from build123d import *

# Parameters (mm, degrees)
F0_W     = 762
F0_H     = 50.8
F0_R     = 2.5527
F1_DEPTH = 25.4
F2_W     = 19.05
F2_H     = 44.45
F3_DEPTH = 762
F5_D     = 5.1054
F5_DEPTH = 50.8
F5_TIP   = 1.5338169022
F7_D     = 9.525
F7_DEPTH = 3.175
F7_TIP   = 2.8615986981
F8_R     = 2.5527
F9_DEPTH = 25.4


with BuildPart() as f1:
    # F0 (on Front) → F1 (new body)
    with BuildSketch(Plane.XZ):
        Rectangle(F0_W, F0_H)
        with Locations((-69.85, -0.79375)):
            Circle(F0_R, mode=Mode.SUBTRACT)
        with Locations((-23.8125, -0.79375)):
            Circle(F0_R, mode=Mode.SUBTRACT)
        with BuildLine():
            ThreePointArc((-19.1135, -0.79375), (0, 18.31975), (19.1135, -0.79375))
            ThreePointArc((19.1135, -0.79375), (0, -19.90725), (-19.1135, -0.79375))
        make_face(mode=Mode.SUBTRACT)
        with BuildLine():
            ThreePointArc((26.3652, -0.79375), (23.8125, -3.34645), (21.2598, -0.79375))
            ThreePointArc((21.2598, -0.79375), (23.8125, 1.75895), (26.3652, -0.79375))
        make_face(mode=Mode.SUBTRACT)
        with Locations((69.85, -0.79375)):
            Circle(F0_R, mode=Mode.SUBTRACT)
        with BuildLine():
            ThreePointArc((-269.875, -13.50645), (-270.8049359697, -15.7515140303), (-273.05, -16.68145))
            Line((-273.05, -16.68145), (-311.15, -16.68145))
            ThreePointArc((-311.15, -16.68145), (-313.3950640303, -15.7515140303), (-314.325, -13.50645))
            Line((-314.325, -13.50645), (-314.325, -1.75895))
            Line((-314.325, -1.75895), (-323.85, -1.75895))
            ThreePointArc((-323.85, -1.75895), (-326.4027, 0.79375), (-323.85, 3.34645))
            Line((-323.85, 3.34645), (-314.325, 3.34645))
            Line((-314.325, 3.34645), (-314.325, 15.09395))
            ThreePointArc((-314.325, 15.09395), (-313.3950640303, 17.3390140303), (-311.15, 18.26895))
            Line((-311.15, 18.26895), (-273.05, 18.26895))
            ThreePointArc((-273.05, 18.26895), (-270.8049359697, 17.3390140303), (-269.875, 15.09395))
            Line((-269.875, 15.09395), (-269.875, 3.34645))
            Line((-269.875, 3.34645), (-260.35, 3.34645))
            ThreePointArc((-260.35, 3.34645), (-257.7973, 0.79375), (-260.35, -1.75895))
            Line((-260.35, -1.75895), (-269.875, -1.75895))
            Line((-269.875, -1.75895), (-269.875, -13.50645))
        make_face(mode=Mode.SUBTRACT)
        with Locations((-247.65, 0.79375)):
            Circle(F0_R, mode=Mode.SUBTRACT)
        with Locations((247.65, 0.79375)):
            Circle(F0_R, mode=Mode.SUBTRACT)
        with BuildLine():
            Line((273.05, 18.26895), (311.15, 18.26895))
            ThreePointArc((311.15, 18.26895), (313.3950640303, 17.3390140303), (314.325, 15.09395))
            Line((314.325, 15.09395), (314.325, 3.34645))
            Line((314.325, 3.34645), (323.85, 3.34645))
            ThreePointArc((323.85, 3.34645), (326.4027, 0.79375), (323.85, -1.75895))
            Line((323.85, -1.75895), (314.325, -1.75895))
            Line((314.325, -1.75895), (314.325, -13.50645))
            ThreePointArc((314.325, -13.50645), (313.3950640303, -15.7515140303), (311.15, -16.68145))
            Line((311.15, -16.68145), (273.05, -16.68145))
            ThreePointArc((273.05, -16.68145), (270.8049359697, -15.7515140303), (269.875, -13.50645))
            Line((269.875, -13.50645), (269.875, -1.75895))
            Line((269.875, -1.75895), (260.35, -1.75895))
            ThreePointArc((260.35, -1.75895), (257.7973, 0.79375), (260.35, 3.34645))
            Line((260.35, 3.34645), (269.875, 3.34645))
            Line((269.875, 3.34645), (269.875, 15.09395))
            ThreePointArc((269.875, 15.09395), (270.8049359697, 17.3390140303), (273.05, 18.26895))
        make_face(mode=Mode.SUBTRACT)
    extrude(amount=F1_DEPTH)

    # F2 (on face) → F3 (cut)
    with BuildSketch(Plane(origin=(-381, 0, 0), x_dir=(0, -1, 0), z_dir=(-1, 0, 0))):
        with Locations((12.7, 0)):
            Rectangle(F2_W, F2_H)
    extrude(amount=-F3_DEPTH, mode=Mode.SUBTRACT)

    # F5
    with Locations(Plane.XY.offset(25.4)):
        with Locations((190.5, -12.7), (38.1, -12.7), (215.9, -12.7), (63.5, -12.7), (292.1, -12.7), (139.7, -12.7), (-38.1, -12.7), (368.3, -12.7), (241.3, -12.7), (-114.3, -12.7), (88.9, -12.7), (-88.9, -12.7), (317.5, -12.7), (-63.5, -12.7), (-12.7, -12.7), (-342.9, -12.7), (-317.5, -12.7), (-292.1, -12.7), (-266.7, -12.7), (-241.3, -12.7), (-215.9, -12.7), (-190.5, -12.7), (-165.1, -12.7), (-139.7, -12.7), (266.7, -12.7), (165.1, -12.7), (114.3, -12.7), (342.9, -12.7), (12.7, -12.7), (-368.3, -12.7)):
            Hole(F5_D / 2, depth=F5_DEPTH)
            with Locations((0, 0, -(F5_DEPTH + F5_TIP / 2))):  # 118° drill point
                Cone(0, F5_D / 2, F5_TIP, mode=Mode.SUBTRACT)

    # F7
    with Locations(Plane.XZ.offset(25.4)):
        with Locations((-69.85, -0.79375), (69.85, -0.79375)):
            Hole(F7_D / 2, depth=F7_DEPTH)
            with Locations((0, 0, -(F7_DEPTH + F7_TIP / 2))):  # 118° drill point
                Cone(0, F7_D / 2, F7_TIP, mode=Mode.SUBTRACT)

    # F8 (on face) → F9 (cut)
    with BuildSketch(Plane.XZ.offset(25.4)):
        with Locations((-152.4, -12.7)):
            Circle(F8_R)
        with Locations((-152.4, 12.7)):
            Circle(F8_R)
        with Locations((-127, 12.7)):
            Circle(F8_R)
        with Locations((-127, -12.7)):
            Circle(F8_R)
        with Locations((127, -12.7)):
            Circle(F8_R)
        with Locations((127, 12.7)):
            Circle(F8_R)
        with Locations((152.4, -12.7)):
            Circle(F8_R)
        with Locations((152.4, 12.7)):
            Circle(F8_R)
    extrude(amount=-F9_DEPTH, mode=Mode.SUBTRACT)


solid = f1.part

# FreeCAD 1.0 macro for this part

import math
import FreeCAD as App
import Part
import Sketcher
from FreeCAD import Vector
Q = App.Units.Quantity

doc = App.newDocument("Part")
body = doc.addObject("PartDesign::Body", "Body")

# Sketch on XZ plane
sketch1 = doc.addObject("Sketcher::SketchObject", "Sketch")
body.addObject(sketch1)
sketch1.AttachmentSupport = (doc.XZ_Plane, [""])
sketch1.MapMode = "FlatFace"
sketch1.addGeometry(Part.LineSegment(Vector(-381, 25.4, 0), Vector(-381, -25.4, 0)), False)
sketch1.addGeometry(Part.LineSegment(Vector(-381, -25.4, 0), Vector(381, -25.4, 0)), False)
sketch1.addGeometry(Part.LineSegment(Vector(381, -25.4, 0), Vector(381, 25.4, 0)), False)
sketch1.addGeometry(Part.LineSegment(Vector(381, 25.4, 0), Vector(-381, 25.4, 0)), False)
sketch1.addGeometry(Part.LineSegment(Vector(-269.9, -1.8, 0), Vector(-269.9, -13.5, 0)), False)
sketch1.addGeometry(Part.ArcOfCircle(Part.Circle(Vector(-273.1, -13.5, 0), Vector(0, 0, 1), 3.2), math.radians(-90), math.radians(0)), False)
sketch1.addGeometry(Part.LineSegment(Vector(-273.1, -16.7, 0), Vector(-311.1, -16.7, 0)), False)
sketch1.addGeometry(Part.ArcOfCircle(Part.Circle(Vector(-311.1, -13.5, 0), Vector(0, 0, 1), 3.2), math.radians(180), math.radians(270)), False)
sketch1.addGeometry(Part.LineSegment(Vector(-314.3, -13.5, 0), Vector(-314.3, -1.8, 0)), False)
sketch1.addGeometry(Part.LineSegment(Vector(-314.3, -1.8, 0), Vector(-323.9, -1.8, 0)), False)
sketch1.addGeometry(Part.ArcOfCircle(Part.Circle(Vector(-323.9, 0.8, 0), Vector(0, 0, 1), 2.6), math.radians(90), math.radians(270)), False)
sketch1.addGeometry(Part.LineSegment(Vector(-323.9, 3.3, 0), Vector(-314.3, 3.3, 0)), False)
sketch1.addGeometry(Part.LineSegment(Vector(-314.3, 3.3, 0), Vector(-314.3, 15.1, 0)), False)
sketch1.addGeometry(Part.ArcOfCircle(Part.Circle(Vector(-311.1, 15.1, 0), Vector(0, 0, 1), 3.2), math.radians(90), math.radians(180)), False)
sketch1.addGeometry(Part.LineSegment(Vector(-311.1, 18.3, 0), Vector(-273.1, 18.3, 0)), False)
sketch1.addGeometry(Part.ArcOfCircle(Part.Circle(Vector(-273.1, 15.1, 0), Vector(0, 0, 1), 3.2), math.radians(0), math.radians(90)), False)
sketch1.addGeometry(Part.LineSegment(Vector(-269.9, 15.1, 0), Vector(-269.9, 3.3, 0)), False)
sketch1.addGeometry(Part.LineSegment(Vector(-269.9, 3.3, 0), Vector(-260.4, 3.3, 0)), False)
sketch1.addGeometry(Part.ArcOfCircle(Part.Circle(Vector(-260.4, 0.8, 0), Vector(0, 0, 1), 2.6), math.radians(-90), math.radians(90)), False)
sketch1.addGeometry(Part.LineSegment(Vector(-260.4, -1.8, 0), Vector(-269.9, -1.8, 0)), False)
sketch1.addGeometry(Part.Circle(Vector(-247.7, 0.8, 0), Vector(0, 0, 1), 2.6), False)
sketch1.addGeometry(Part.Circle(Vector(-69.8, -0.8, 0), Vector(0, 0, 1), 2.6), False)
sketch1.addGeometry(Part.Circle(Vector(-23.8, -0.8, 0), Vector(0, 0, 1), 2.6), False)
sketch1.addGeometry(Part.Circle(Vector(0, -0.8, 0), Vector(0, 0, 1), 19.1), False)
sketch1.addGeometry(Part.Circle(Vector(23.8, -0.8, 0), Vector(0, 0, 1), 2.6), False)
sketch1.addGeometry(Part.Circle(Vector(69.8, -0.8, 0), Vector(0, 0, 1), 2.6), False)
sketch1.addGeometry(Part.Circle(Vector(247.7, 0.8, 0), Vector(0, 0, 1), 2.6), False)
sketch1.addGeometry(Part.ArcOfCircle(Part.Circle(Vector(273.1, 15.1, 0), Vector(0, 0, 1), 3.2), math.radians(90), math.radians(180)), False)
sketch1.addGeometry(Part.LineSegment(Vector(273.1, 18.3, 0), Vector(311.1, 18.3, 0)), False)
sketch1.addGeometry(Part.ArcOfCircle(Part.Circle(Vector(311.1, 15.1, 0), Vector(0, 0, 1), 3.2), math.radians(0), math.radians(90)), False)
sketch1.addGeometry(Part.LineSegment(Vector(314.3, 15.1, 0), Vector(314.3, 3.3, 0)), False)
sketch1.addGeometry(Part.LineSegment(Vector(314.3, 3.3, 0), Vector(323.9, 3.3, 0)), False)
sketch1.addGeometry(Part.ArcOfCircle(Part.Circle(Vector(323.9, 0.8, 0), Vector(0, 0, 1), 2.6), math.radians(-90), math.radians(90)), False)
sketch1.addGeometry(Part.LineSegment(Vector(323.9, -1.8, 0), Vector(314.3, -1.8, 0)), False)
sketch1.addGeometry(Part.LineSegment(Vector(314.3, -1.8, 0), Vector(314.3, -13.5, 0)), False)
sketch1.addGeometry(Part.ArcOfCircle(Part.Circle(Vector(311.1, -13.5, 0), Vector(0, 0, 1), 3.2), math.radians(-90), math.radians(0)), False)
sketch1.addGeometry(Part.LineSegment(Vector(311.1, -16.7, 0), Vector(273.1, -16.7, 0)), False)
sketch1.addGeometry(Part.ArcOfCircle(Part.Circle(Vector(273.1, -13.5, 0), Vector(0, 0, 1), 3.2), math.radians(180), math.radians(270)), False)
sketch1.addGeometry(Part.LineSegment(Vector(269.9, -13.5, 0), Vector(269.9, -1.8, 0)), False)
sketch1.addGeometry(Part.LineSegment(Vector(269.9, -1.8, 0), Vector(260.4, -1.8, 0)), False)
sketch1.addGeometry(Part.ArcOfCircle(Part.Circle(Vector(260.4, 0.8, 0), Vector(0, 0, 1), 2.6), math.radians(90), math.radians(270)), False)
sketch1.addGeometry(Part.LineSegment(Vector(260.4, 3.3, 0), Vector(269.9, 3.3, 0)), False)
sketch1.addGeometry(Part.LineSegment(Vector(269.9, 3.3, 0), Vector(269.9, 15.1, 0)), False)
sketch1.addConstraint(Sketcher.Constraint("Coincident", 0, 2, 1, 1))
sketch1.addConstraint(Sketcher.Constraint("Coincident", 1, 2, 2, 1))
sketch1.addConstraint(Sketcher.Constraint("Coincident", 2, 2, 3, 1))
sketch1.addConstraint(Sketcher.Constraint("Coincident", 3, 2, 0, 1))
sketch1.addConstraint(Sketcher.Constraint("Tangent", 4, 2, 5, 2))
sketch1.addConstraint(Sketcher.Constraint("Tangent", 5, 1, 6, 1))
sketch1.addConstraint(Sketcher.Constraint("Tangent", 6, 2, 7, 2))
sketch1.addConstraint(Sketcher.Constraint("Tangent", 7, 1, 8, 1))
sketch1.addConstraint(Sketcher.Constraint("Coincident", 8, 2, 9, 1))
sketch1.addConstraint(Sketcher.Constraint("Tangent", 9, 2, 10, 2))
sketch1.addConstraint(Sketcher.Constraint("Tangent", 10, 1, 11, 1))
sketch1.addConstraint(Sketcher.Constraint("Coincident", 11, 2, 12, 1))
sketch1.addConstraint(Sketcher.Constraint("Tangent", 12, 2, 13, 2))
sketch1.addConstraint(Sketcher.Constraint("Tangent", 13, 1, 14, 1))
sketch1.addConstraint(Sketcher.Constraint("Tangent", 14, 2, 15, 2))
sketch1.addConstraint(Sketcher.Constraint("Tangent", 15, 1, 16, 1))
sketch1.addConstraint(Sketcher.Constraint("Coincident", 16, 2, 17, 1))
sketch1.addConstraint(Sketcher.Constraint("Tangent", 17, 2, 18, 2))
sketch1.addConstraint(Sketcher.Constraint("Tangent", 18, 1, 19, 1))
sketch1.addConstraint(Sketcher.Constraint("Coincident", 19, 2, 4, 1))
sketch1.addConstraint(Sketcher.Constraint("Tangent", 27, 1, 28, 1))
sketch1.addConstraint(Sketcher.Constraint("Tangent", 28, 2, 29, 2))
sketch1.addConstraint(Sketcher.Constraint("Tangent", 29, 1, 30, 1))
sketch1.addConstraint(Sketcher.Constraint("Coincident", 30, 2, 31, 1))
sketch1.addConstraint(Sketcher.Constraint("Tangent", 31, 2, 32, 2))
sketch1.addConstraint(Sketcher.Constraint("Tangent", 32, 1, 33, 1))
sketch1.addConstraint(Sketcher.Constraint("Coincident", 33, 2, 34, 1))
sketch1.addConstraint(Sketcher.Constraint("Tangent", 34, 2, 35, 2))
sketch1.addConstraint(Sketcher.Constraint("Tangent", 35, 1, 36, 1))
sketch1.addConstraint(Sketcher.Constraint("Tangent", 36, 2, 37, 2))
sketch1.addConstraint(Sketcher.Constraint("Tangent", 37, 1, 38, 1))
sketch1.addConstraint(Sketcher.Constraint("Coincident", 38, 2, 39, 1))
sketch1.addConstraint(Sketcher.Constraint("Tangent", 39, 2, 40, 2))
sketch1.addConstraint(Sketcher.Constraint("Tangent", 40, 1, 41, 1))
sketch1.addConstraint(Sketcher.Constraint("Coincident", 41, 2, 42, 1))
sketch1.addConstraint(Sketcher.Constraint("Tangent", 42, 2, 27, 2))
sketch1.addConstraint(Sketcher.Constraint("Vertical", 0))
sketch1.addConstraint(Sketcher.Constraint("Horizontal", 1))
sketch1.addConstraint(Sketcher.Constraint("Vertical", 2))
sketch1.addConstraint(Sketcher.Constraint("Horizontal", 3))
sketch1.addConstraint(Sketcher.Constraint("Vertical", 4))
sketch1.addConstraint(Sketcher.Constraint("Horizontal", 6))
sketch1.addConstraint(Sketcher.Constraint("Vertical", 8))
sketch1.addConstraint(Sketcher.Constraint("Horizontal", 9))
sketch1.addConstraint(Sketcher.Constraint("Horizontal", 11))
sketch1.addConstraint(Sketcher.Constraint("Vertical", 12))
sketch1.addConstraint(Sketcher.Constraint("Horizontal", 14))
sketch1.addConstraint(Sketcher.Constraint("Vertical", 16))
sketch1.addConstraint(Sketcher.Constraint("Horizontal", 17))
sketch1.addConstraint(Sketcher.Constraint("Horizontal", 19))
sketch1.addConstraint(Sketcher.Constraint("Horizontal", 28))
sketch1.addConstraint(Sketcher.Constraint("Vertical", 30))
sketch1.addConstraint(Sketcher.Constraint("Horizontal", 31))
sketch1.addConstraint(Sketcher.Constraint("Horizontal", 33))
sketch1.addConstraint(Sketcher.Constraint("Vertical", 34))
sketch1.addConstraint(Sketcher.Constraint("Horizontal", 36))
sketch1.addConstraint(Sketcher.Constraint("Vertical", 38))
sketch1.addConstraint(Sketcher.Constraint("Horizontal", 39))
sketch1.addConstraint(Sketcher.Constraint("Horizontal", 41))
sketch1.addConstraint(Sketcher.Constraint("Vertical", 42))
sketch1.addConstraint(Sketcher.Constraint("Equal", 5, 7))
sketch1.addConstraint(Sketcher.Constraint("Equal", 7, 13))
sketch1.addConstraint(Sketcher.Constraint("Equal", 13, 15))
sketch1.addConstraint(Sketcher.Constraint("Equal", 10, 18))
sketch1.addConstraint(Sketcher.Constraint("Equal", 18, 20))
sketch1.addConstraint(Sketcher.Constraint("Equal", 20, 21))
sketch1.addConstraint(Sketcher.Constraint("Equal", 21, 22))
sketch1.addConstraint(Sketcher.Constraint("Equal", 22, 24))
sketch1.addConstraint(Sketcher.Constraint("Equal", 24, 25))
sketch1.addConstraint(Sketcher.Constraint("Equal", 25, 26))
sketch1.addConstraint(Sketcher.Constraint("Equal", 15, 27))
sketch1.addConstraint(Sketcher.Constraint("Equal", 27, 29))
sketch1.addConstraint(Sketcher.Constraint("Equal", 26, 32))
sketch1.addConstraint(Sketcher.Constraint("Equal", 29, 35))
sketch1.addConstraint(Sketcher.Constraint("Equal", 35, 37))
sketch1.addConstraint(Sketcher.Constraint("Equal", 32, 40))
sketch1.addConstraint(Sketcher.Constraint("Symmetric", 0, 2, 2, 2, -1, 1))
sketch1.addConstraint(Sketcher.Constraint("Symmetric", 22, 3, 24, 3, -2))
sketch1.addConstraint(Sketcher.Constraint("Symmetric", 21, 3, 25, 3, -2))
sketch1.addConstraint(Sketcher.Constraint("Symmetric", 20, 3, 26, 3, -2))
sketch1.addConstraint(Sketcher.Constraint("Symmetric", 15, 3, 27, 3, -2))
sketch1.addConstraint(Sketcher.Constraint("Symmetric", 10, 3, 32, 3, -2))
sketch1.addConstraint(Sketcher.Constraint("Symmetric", 7, 3, 35, 3, -2))
sketch1.addConstraint(Sketcher.Constraint("Symmetric", 18, 3, 40, 3, -2))
sketch1.addConstraint(Sketcher.Constraint("PointOnObject", 23, 3, -2))
sketch1.addConstraint(Sketcher.Constraint("Horizontal", 10, 3, 18, 3))
sketch1.addConstraint(Sketcher.Constraint("Horizontal", 18, 3, 20, 3))
sketch1.addConstraint(Sketcher.Constraint("Horizontal", 21, 3, 22, 3))
sketch1.addConstraint(Sketcher.Constraint("Horizontal", 22, 3, 23, 3))
sketch1.addConstraint(Sketcher.Constraint("Vertical", 7, 3, 13, 3))
sketch1.addConstraint(Sketcher.Constraint("Vertical", 5, 3, 15, 3))
sketch1.addConstraint(Sketcher.Constraint("Vertical", 29, 3, 35, 3))
sketch1.addConstraint(Sketcher.Constraint("Vertical", 27, 3, 37, 3))
sketch1.addConstraint(Sketcher.Constraint("Equal", 11, 17))
sketch1.addConstraint(Sketcher.Constraint("Equal", 8, 12))
sketch1.addConstraint(Sketcher.Constraint("DistanceX", 1, 1, 1, 2, Q("30 in")))
sketch1.addConstraint(Sketcher.Constraint("DistanceY", 0, 2, 0, 1, Q("2 in")))
sketch1.addConstraint(Sketcher.Constraint("Diameter", 20, Q("0.201 in")))
sketch1.addConstraint(Sketcher.Constraint("Diameter", 23, Q("1.505 in")))
sketch1.addConstraint(Sketcher.Constraint("DistanceX", 6, 2, 6, 1, Q("1.5 in")))
sketch1.addConstraint(Sketcher.Constraint("Radius", 5, Q("0.125 in")))
sketch1.addConstraint(Sketcher.Constraint("DistanceX", 10, 3, 5, 3, Q("2 in")))
sketch1.addConstraint(Sketcher.Constraint("DistanceX", 5, 3, 20, 3, Q("1 in")))
sketch1.addConstraint(Sketcher.Constraint("DistanceX", 20, 3, 21, 3, Q("7 in")))
sketch1.addConstraint(Sketcher.Constraint("DistanceX", 21, 3, 25, 3, Q("5.5 in")))
sketch1.addConstraint(Sketcher.Constraint("DistanceY", 4, 2, 4, 1, Q("0.4625 in")))
sketch1.addConstraint(Sketcher.Constraint("DistanceY", -1, 1, 10, 3, Q("0.03125 in")))
sketch1.addConstraint(Sketcher.Constraint("DistanceY", 21, 3, -1, 1, Q("0.03125 in")))
sketch1.addConstraint(Sketcher.Constraint("DistanceX", 22, 3, -1, 1, Q("0.9375 in")))
pad1 = doc.addObject("PartDesign::Pad", "Pad")
body.addObject(pad1)
pad1.Profile = sketch1
pad1.Length = Q("1 in")

# Sketch on YZ plane
sketch2 = doc.addObject("Sketcher::SketchObject", "Sketch001")
body.addObject(sketch2)
sketch2.AttachmentSupport = (doc.YZ_Plane, [""])
sketch2.MapMode = "FlatFace"
sketch2.AttachmentOffset = App.Placement(Vector(0, 0, -15 * 25.4), App.Rotation())
sketch2.addGeometry(Part.LineSegment(Vector(-3, 22, 0), Vector(-3, -22, 0)), False)
sketch2.addGeometry(Part.LineSegment(Vector(-3, -22, 0), Vector(-22, -22, 0)), False)
sketch2.addGeometry(Part.LineSegment(Vector(-22, -22, 0), Vector(-22, 22, 0)), False)
sketch2.addGeometry(Part.LineSegment(Vector(-22, 22, 0), Vector(-3, 22, 0)), False)
sketch2.addConstraint(Sketcher.Constraint("Coincident", 0, 2, 1, 1))
sketch2.addConstraint(Sketcher.Constraint("Coincident", 1, 2, 2, 1))
sketch2.addConstraint(Sketcher.Constraint("Coincident", 2, 2, 3, 1))
sketch2.addConstraint(Sketcher.Constraint("Coincident", 3, 2, 0, 1))
sketch2.addConstraint(Sketcher.Constraint("Vertical", 0))
sketch2.addConstraint(Sketcher.Constraint("Horizontal", 1))
sketch2.addConstraint(Sketcher.Constraint("Vertical", 2))
sketch2.addConstraint(Sketcher.Constraint("Horizontal", 3))
sketch2.addConstraint(Sketcher.Constraint("DistanceX", 1, 2, 1, 1, Q("0.75 in")))
sketch2.addConstraint(Sketcher.Constraint("DistanceY", 0, 2, 0, 1, Q("1.75 in")))
sketch2.addConstraint(Sketcher.Constraint("DistanceX", 0, 2, -1, 1, Q("0.125 in")))
sketch2.addConstraint(Sketcher.Constraint("DistanceY", 0, 2, -1, 1, Q("0.875 in")))
pocket1 = doc.addObject("PartDesign::Pocket", "Pocket")
body.addObject(pocket1)
pocket1.Profile = sketch2
pocket1.Length = Q("30 in")
pocket1.Reversed = True

# Sketch on XY plane
sketch3 = doc.addObject("Sketcher::SketchObject", "Sketch002")
body.addObject(sketch3)
sketch3.AttachmentSupport = (doc.XY_Plane, [""])
sketch3.MapMode = "FlatFace"
sketch3.AttachmentOffset = App.Placement(Vector(0, 0, 1 * 25.4), App.Rotation())
sketch3.addGeometry(Part.Circle(Vector(190.5, -12.7, 0), Vector(0, 0, 1), 2.6), False)
sketch3.addGeometry(Part.Circle(Vector(38.1, -12.7, 0), Vector(0, 0, 1), 2.6), False)
sketch3.addGeometry(Part.Circle(Vector(215.9, -12.7, 0), Vector(0, 0, 1), 2.6), False)
sketch3.addGeometry(Part.Circle(Vector(63.5, -12.7, 0), Vector(0, 0, 1), 2.6), False)
sketch3.addGeometry(Part.Circle(Vector(292.1, -12.7, 0), Vector(0, 0, 1), 2.6), False)
sketch3.addGeometry(Part.Circle(Vector(139.7, -12.7, 0), Vector(0, 0, 1), 2.6), False)
sketch3.addGeometry(Part.Circle(Vector(-38.1, -12.7, 0), Vector(0, 0, 1), 2.6), False)
sketch3.addGeometry(Part.Circle(Vector(368.3, -12.7, 0), Vector(0, 0, 1), 2.6), False)
sketch3.addGeometry(Part.Circle(Vector(241.3, -12.7, 0), Vector(0, 0, 1), 2.6), False)
sketch3.addGeometry(Part.Circle(Vector(-114.3, -12.7, 0), Vector(0, 0, 1), 2.6), False)
sketch3.addGeometry(Part.Circle(Vector(88.9, -12.7, 0), Vector(0, 0, 1), 2.6), False)
sketch3.addGeometry(Part.Circle(Vector(-88.9, -12.7, 0), Vector(0, 0, 1), 2.6), False)
sketch3.addGeometry(Part.Circle(Vector(317.5, -12.7, 0), Vector(0, 0, 1), 2.6), False)
sketch3.addGeometry(Part.Circle(Vector(-63.5, -12.7, 0), Vector(0, 0, 1), 2.6), False)
sketch3.addGeometry(Part.Circle(Vector(-12.7, -12.7, 0), Vector(0, 0, 1), 2.6), False)
sketch3.addGeometry(Part.Circle(Vector(-342.9, -12.7, 0), Vector(0, 0, 1), 2.6), False)
sketch3.addGeometry(Part.Circle(Vector(-317.5, -12.7, 0), Vector(0, 0, 1), 2.6), False)
sketch3.addGeometry(Part.Circle(Vector(-292.1, -12.7, 0), Vector(0, 0, 1), 2.6), False)
sketch3.addGeometry(Part.Circle(Vector(-266.7, -12.7, 0), Vector(0, 0, 1), 2.6), False)
sketch3.addGeometry(Part.Circle(Vector(-241.3, -12.7, 0), Vector(0, 0, 1), 2.6), False)
sketch3.addGeometry(Part.Circle(Vector(-215.9, -12.7, 0), Vector(0, 0, 1), 2.6), False)
sketch3.addGeometry(Part.Circle(Vector(-190.5, -12.7, 0), Vector(0, 0, 1), 2.6), False)
sketch3.addGeometry(Part.Circle(Vector(-165.1, -12.7, 0), Vector(0, 0, 1), 2.6), False)
sketch3.addGeometry(Part.Circle(Vector(-139.7, -12.7, 0), Vector(0, 0, 1), 2.6), False)
sketch3.addGeometry(Part.Circle(Vector(266.7, -12.7, 0), Vector(0, 0, 1), 2.6), False)
sketch3.addGeometry(Part.Circle(Vector(165.1, -12.7, 0), Vector(0, 0, 1), 2.6), False)
sketch3.addGeometry(Part.Circle(Vector(114.3, -12.7, 0), Vector(0, 0, 1), 2.6), False)
sketch3.addGeometry(Part.Circle(Vector(342.9, -12.7, 0), Vector(0, 0, 1), 2.6), False)
sketch3.addGeometry(Part.Circle(Vector(12.7, -12.7, 0), Vector(0, 0, 1), 2.6), False)
sketch3.addGeometry(Part.Circle(Vector(-368.3, -12.7, 0), Vector(0, 0, 1), 2.6), False)
sketch3.addConstraint(Sketcher.Constraint("Equal", 0, 1))
sketch3.addConstraint(Sketcher.Constraint("Equal", 1, 2))
sketch3.addConstraint(Sketcher.Constraint("Equal", 2, 3))
sketch3.addConstraint(Sketcher.Constraint("Equal", 3, 4))
sketch3.addConstraint(Sketcher.Constraint("Equal", 4, 5))
sketch3.addConstraint(Sketcher.Constraint("Equal", 5, 6))
sketch3.addConstraint(Sketcher.Constraint("Equal", 6, 7))
sketch3.addConstraint(Sketcher.Constraint("Equal", 7, 8))
sketch3.addConstraint(Sketcher.Constraint("Equal", 8, 9))
sketch3.addConstraint(Sketcher.Constraint("Equal", 9, 10))
sketch3.addConstraint(Sketcher.Constraint("Equal", 10, 11))
sketch3.addConstraint(Sketcher.Constraint("Equal", 11, 12))
sketch3.addConstraint(Sketcher.Constraint("Equal", 12, 13))
sketch3.addConstraint(Sketcher.Constraint("Equal", 13, 14))
sketch3.addConstraint(Sketcher.Constraint("Equal", 14, 15))
sketch3.addConstraint(Sketcher.Constraint("Equal", 15, 16))
sketch3.addConstraint(Sketcher.Constraint("Equal", 16, 17))
sketch3.addConstraint(Sketcher.Constraint("Equal", 17, 18))
sketch3.addConstraint(Sketcher.Constraint("Equal", 18, 19))
sketch3.addConstraint(Sketcher.Constraint("Equal", 19, 20))
sketch3.addConstraint(Sketcher.Constraint("Equal", 20, 21))
sketch3.addConstraint(Sketcher.Constraint("Equal", 21, 22))
sketch3.addConstraint(Sketcher.Constraint("Equal", 22, 23))
sketch3.addConstraint(Sketcher.Constraint("Equal", 23, 24))
sketch3.addConstraint(Sketcher.Constraint("Equal", 24, 25))
sketch3.addConstraint(Sketcher.Constraint("Equal", 25, 26))
sketch3.addConstraint(Sketcher.Constraint("Equal", 26, 27))
sketch3.addConstraint(Sketcher.Constraint("Equal", 27, 28))
sketch3.addConstraint(Sketcher.Constraint("Equal", 28, 29))
sketch3.addConstraint(Sketcher.Constraint("Symmetric", 1, 3, 6, 3, -2))
sketch3.addConstraint(Sketcher.Constraint("Symmetric", 10, 3, 11, 3, -2))
sketch3.addConstraint(Sketcher.Constraint("Symmetric", 3, 3, 13, 3, -2))
sketch3.addConstraint(Sketcher.Constraint("Symmetric", 12, 3, 16, 3, -2))
sketch3.addConstraint(Sketcher.Constraint("Symmetric", 4, 3, 17, 3, -2))
sketch3.addConstraint(Sketcher.Constraint("Symmetric", 8, 3, 19, 3, -2))
sketch3.addConstraint(Sketcher.Constraint("Symmetric", 2, 3, 20, 3, -2))
sketch3.addConstraint(Sketcher.Constraint("Symmetric", 0, 3, 21, 3, -2))
sketch3.addConstraint(Sketcher.Constraint("Symmetric", 5, 3, 23, 3, -2))
sketch3.addConstraint(Sketcher.Constraint("Symmetric", 18, 3, 24, 3, -2))
sketch3.addConstraint(Sketcher.Constraint("Symmetric", 22, 3, 25, 3, -2))
sketch3.addConstraint(Sketcher.Constraint("Symmetric", 9, 3, 26, 3, -2))
sketch3.addConstraint(Sketcher.Constraint("Symmetric", 15, 3, 27, 3, -2))
sketch3.addConstraint(Sketcher.Constraint("Symmetric", 14, 3, 28, 3, -2))
sketch3.addConstraint(Sketcher.Constraint("Symmetric", 7, 3, 29, 3, -2))
sketch3.addConstraint(Sketcher.Constraint("Horizontal", 0, 3, 1, 3))
sketch3.addConstraint(Sketcher.Constraint("Horizontal", 1, 3, 2, 3))
sketch3.addConstraint(Sketcher.Constraint("Horizontal", 2, 3, 3, 3))
sketch3.addConstraint(Sketcher.Constraint("Horizontal", 3, 3, 4, 3))
sketch3.addConstraint(Sketcher.Constraint("Horizontal", 4, 3, 5, 3))
sketch3.addConstraint(Sketcher.Constraint("Horizontal", 6, 3, 7, 3))
sketch3.addConstraint(Sketcher.Constraint("Horizontal", 7, 3, 8, 3))
sketch3.addConstraint(Sketcher.Constraint("Horizontal", 8, 3, 9, 3))
sketch3.addConstraint(Sketcher.Constraint("Horizontal", 9, 3, 10, 3))
sketch3.addConstraint(Sketcher.Constraint("Horizontal", 11, 3, 12, 3))
sketch3.addConstraint(Sketcher.Constraint("Horizontal", 13, 3, 14, 3))
sketch3.addConstraint(Sketcher.Constraint("Horizontal", 14, 3, 15, 3))
sketch3.addConstraint(Sketcher.Constraint("Horizontal", 17, 3, 18, 3))
sketch3.addConstraint(Sketcher.Constraint("Horizontal", 21, 3, 22, 3))
sketch3.addConstraint(Sketcher.Constraint("Diameter", 0, Q("0.201 in")))
sketch3.addConstraint(Sketcher.Constraint("DistanceX", 1, 3, 0, 3, Q("6 in")))
sketch3.addConstraint(Sketcher.Constraint("DistanceX", 0, 3, 2, 3, Q("1 in")))
sketch3.addConstraint(Sketcher.Constraint("DistanceX", 1, 3, 3, 3, Q("1 in")))
sketch3.addConstraint(Sketcher.Constraint("DistanceX", 2, 3, 4, 3, Q("3 in")))
sketch3.addConstraint(Sketcher.Constraint("DistanceX", 5, 3, 0, 3, Q("2 in")))
sketch3.addConstraint(Sketcher.Constraint("DistanceX", 6, 3, 1, 3, Q("3 in")))
sketch3.addConstraint(Sketcher.Constraint("DistanceX", 4, 3, 7, 3, Q("3 in")))
sketch3.addConstraint(Sketcher.Constraint("DistanceX", 2, 3, 8, 3, Q("1 in")))
sketch3.addConstraint(Sketcher.Constraint("DistanceX", 9, 3, 6, 3, Q("3 in")))
sketch3.addConstraint(Sketcher.Constraint("DistanceX", 3, 3, 10, 3, Q("1 in")))
sketch3.addConstraint(Sketcher.Constraint("DistanceX", 4, 3, 12, 3, Q("1 in")))
sketch3.addConstraint(Sketcher.Constraint("DistanceX", 6, 3, 14, 3, Q("1 in")))
sketch3.addConstraint(Sketcher.Constraint("DistanceX", 15, 3, 9, 3, Q("9 in")))
sketch3.addConstraint(Sketcher.Constraint("DistanceX", 17, 3, 18, 3, Q("1 in")))
sketch3.addConstraint(Sketcher.Constraint("DistanceX", 21, 3, 22, 3, Q("1 in")))
sketch3.addConstraint(Sketcher.Constraint("DistanceY", 0, 3, -1, 1, Q("0.5 in")))
doc.recompute()
hole = doc.addObject("PartDesign::Hole", "Hole")
body.addObject(hole)
hole.Profile = sketch3
hole.ThreadType = "None"
hole.Diameter = Q("0.201 in")
hole.DepthType = "Dimension"
hole.Depth = Q("2 in")
hole.DrillPoint = "Angled"
hole.DrillPointAngle = 118

# Sketch on XZ plane
sketch4 = doc.addObject("Sketcher::SketchObject", "Sketch003")
body.addObject(sketch4)
sketch4.AttachmentSupport = (doc.XZ_Plane, [""])
sketch4.MapMode = "FlatFace"
sketch4.AttachmentOffset = App.Placement(Vector(0, 0, 1 * 25.4), App.Rotation())
sketch4.addGeometry(Part.Circle(Vector(-69.8, -0.8, 0), Vector(0, 0, 1), 4.8), False)
sketch4.addGeometry(Part.Circle(Vector(69.8, -0.8, 0), Vector(0, 0, 1), 4.8), False)
sketch4.addConstraint(Sketcher.Constraint("Equal", 0, 1))
sketch4.addConstraint(Sketcher.Constraint("Symmetric", 0, 3, 1, 3, -2))
sketch4.addConstraint(Sketcher.Constraint("Diameter", 0, Q("0.375 in")))
sketch4.addConstraint(Sketcher.Constraint("DistanceX", 0, 3, 1, 3, Q("5.5 in")))
sketch4.addConstraint(Sketcher.Constraint("DistanceY", 0, 3, -1, 1, Q("0.03125 in")))
doc.recompute()
hole2 = doc.addObject("PartDesign::Hole", "Hole001")
body.addObject(hole2)
hole2.Profile = sketch4
hole2.ThreadType = "None"
hole2.Diameter = Q("0.375 in")
hole2.DepthType = "Dimension"
hole2.Depth = Q("0.125 in")
hole2.DrillPoint = "Angled"
hole2.DrillPointAngle = 118

# Sketch on XZ plane
sketch5 = doc.addObject("Sketcher::SketchObject", "Sketch004")
body.addObject(sketch5)
sketch5.AttachmentSupport = (doc.XZ_Plane, [""])
sketch5.MapMode = "FlatFace"
sketch5.AttachmentOffset = App.Placement(Vector(0, 0, 1 * 25.4), App.Rotation())
sketch5.addGeometry(Part.Circle(Vector(-152.4, -12.7, 0), Vector(0, 0, 1), 2.6), False)
sketch5.addGeometry(Part.Circle(Vector(-152.4, 12.7, 0), Vector(0, 0, 1), 2.6), False)
sketch5.addGeometry(Part.Circle(Vector(-127, 12.7, 0), Vector(0, 0, 1), 2.6), False)
sketch5.addGeometry(Part.Circle(Vector(-127, -12.7, 0), Vector(0, 0, 1), 2.6), False)
sketch5.addGeometry(Part.Circle(Vector(127, -12.7, 0), Vector(0, 0, 1), 2.6), False)
sketch5.addGeometry(Part.Circle(Vector(127, 12.7, 0), Vector(0, 0, 1), 2.6), False)
sketch5.addGeometry(Part.Circle(Vector(152.4, -12.7, 0), Vector(0, 0, 1), 2.6), False)
sketch5.addGeometry(Part.Circle(Vector(152.4, 12.7, 0), Vector(0, 0, 1), 2.6), False)
sketch5.addConstraint(Sketcher.Constraint("Equal", 0, 1))
sketch5.addConstraint(Sketcher.Constraint("Equal", 1, 2))
sketch5.addConstraint(Sketcher.Constraint("Equal", 2, 3))
sketch5.addConstraint(Sketcher.Constraint("Equal", 3, 4))
sketch5.addConstraint(Sketcher.Constraint("Equal", 4, 5))
sketch5.addConstraint(Sketcher.Constraint("Equal", 5, 6))
sketch5.addConstraint(Sketcher.Constraint("Equal", 6, 7))
sketch5.addConstraint(Sketcher.Constraint("Symmetric", 2, 3, 4, 3, -1, 1))
sketch5.addConstraint(Sketcher.Constraint("Symmetric", 3, 3, 5, 3, -1, 1))
sketch5.addConstraint(Sketcher.Constraint("Symmetric", 1, 3, 6, 3, -1, 1))
sketch5.addConstraint(Sketcher.Constraint("Symmetric", 0, 3, 7, 3, -1, 1))
sketch5.addConstraint(Sketcher.Constraint("Symmetric", 3, 3, 4, 3, -2))
sketch5.addConstraint(Sketcher.Constraint("Symmetric", 0, 3, 6, 3, -2))
sketch5.addConstraint(Sketcher.Constraint("Horizontal", 1, 3, 2, 3))
sketch5.addConstraint(Sketcher.Constraint("Diameter", 0, Q("0.201 in")))
sketch5.addConstraint(Sketcher.Constraint("DistanceX", 0, 3, -1, 1, Q("6 in")))
sketch5.addConstraint(Sketcher.Constraint("DistanceX", 2, 3, -1, 1, Q("5 in")))
sketch5.addConstraint(Sketcher.Constraint("DistanceY", 0, 3, 1, 3, Q("1 in")))
pocket2 = doc.addObject("PartDesign::Pocket", "Pocket001")
body.addObject(pocket2)
pocket2.Profile = sketch5
pocket2.Length = Q("1 in")

doc.recompute()
